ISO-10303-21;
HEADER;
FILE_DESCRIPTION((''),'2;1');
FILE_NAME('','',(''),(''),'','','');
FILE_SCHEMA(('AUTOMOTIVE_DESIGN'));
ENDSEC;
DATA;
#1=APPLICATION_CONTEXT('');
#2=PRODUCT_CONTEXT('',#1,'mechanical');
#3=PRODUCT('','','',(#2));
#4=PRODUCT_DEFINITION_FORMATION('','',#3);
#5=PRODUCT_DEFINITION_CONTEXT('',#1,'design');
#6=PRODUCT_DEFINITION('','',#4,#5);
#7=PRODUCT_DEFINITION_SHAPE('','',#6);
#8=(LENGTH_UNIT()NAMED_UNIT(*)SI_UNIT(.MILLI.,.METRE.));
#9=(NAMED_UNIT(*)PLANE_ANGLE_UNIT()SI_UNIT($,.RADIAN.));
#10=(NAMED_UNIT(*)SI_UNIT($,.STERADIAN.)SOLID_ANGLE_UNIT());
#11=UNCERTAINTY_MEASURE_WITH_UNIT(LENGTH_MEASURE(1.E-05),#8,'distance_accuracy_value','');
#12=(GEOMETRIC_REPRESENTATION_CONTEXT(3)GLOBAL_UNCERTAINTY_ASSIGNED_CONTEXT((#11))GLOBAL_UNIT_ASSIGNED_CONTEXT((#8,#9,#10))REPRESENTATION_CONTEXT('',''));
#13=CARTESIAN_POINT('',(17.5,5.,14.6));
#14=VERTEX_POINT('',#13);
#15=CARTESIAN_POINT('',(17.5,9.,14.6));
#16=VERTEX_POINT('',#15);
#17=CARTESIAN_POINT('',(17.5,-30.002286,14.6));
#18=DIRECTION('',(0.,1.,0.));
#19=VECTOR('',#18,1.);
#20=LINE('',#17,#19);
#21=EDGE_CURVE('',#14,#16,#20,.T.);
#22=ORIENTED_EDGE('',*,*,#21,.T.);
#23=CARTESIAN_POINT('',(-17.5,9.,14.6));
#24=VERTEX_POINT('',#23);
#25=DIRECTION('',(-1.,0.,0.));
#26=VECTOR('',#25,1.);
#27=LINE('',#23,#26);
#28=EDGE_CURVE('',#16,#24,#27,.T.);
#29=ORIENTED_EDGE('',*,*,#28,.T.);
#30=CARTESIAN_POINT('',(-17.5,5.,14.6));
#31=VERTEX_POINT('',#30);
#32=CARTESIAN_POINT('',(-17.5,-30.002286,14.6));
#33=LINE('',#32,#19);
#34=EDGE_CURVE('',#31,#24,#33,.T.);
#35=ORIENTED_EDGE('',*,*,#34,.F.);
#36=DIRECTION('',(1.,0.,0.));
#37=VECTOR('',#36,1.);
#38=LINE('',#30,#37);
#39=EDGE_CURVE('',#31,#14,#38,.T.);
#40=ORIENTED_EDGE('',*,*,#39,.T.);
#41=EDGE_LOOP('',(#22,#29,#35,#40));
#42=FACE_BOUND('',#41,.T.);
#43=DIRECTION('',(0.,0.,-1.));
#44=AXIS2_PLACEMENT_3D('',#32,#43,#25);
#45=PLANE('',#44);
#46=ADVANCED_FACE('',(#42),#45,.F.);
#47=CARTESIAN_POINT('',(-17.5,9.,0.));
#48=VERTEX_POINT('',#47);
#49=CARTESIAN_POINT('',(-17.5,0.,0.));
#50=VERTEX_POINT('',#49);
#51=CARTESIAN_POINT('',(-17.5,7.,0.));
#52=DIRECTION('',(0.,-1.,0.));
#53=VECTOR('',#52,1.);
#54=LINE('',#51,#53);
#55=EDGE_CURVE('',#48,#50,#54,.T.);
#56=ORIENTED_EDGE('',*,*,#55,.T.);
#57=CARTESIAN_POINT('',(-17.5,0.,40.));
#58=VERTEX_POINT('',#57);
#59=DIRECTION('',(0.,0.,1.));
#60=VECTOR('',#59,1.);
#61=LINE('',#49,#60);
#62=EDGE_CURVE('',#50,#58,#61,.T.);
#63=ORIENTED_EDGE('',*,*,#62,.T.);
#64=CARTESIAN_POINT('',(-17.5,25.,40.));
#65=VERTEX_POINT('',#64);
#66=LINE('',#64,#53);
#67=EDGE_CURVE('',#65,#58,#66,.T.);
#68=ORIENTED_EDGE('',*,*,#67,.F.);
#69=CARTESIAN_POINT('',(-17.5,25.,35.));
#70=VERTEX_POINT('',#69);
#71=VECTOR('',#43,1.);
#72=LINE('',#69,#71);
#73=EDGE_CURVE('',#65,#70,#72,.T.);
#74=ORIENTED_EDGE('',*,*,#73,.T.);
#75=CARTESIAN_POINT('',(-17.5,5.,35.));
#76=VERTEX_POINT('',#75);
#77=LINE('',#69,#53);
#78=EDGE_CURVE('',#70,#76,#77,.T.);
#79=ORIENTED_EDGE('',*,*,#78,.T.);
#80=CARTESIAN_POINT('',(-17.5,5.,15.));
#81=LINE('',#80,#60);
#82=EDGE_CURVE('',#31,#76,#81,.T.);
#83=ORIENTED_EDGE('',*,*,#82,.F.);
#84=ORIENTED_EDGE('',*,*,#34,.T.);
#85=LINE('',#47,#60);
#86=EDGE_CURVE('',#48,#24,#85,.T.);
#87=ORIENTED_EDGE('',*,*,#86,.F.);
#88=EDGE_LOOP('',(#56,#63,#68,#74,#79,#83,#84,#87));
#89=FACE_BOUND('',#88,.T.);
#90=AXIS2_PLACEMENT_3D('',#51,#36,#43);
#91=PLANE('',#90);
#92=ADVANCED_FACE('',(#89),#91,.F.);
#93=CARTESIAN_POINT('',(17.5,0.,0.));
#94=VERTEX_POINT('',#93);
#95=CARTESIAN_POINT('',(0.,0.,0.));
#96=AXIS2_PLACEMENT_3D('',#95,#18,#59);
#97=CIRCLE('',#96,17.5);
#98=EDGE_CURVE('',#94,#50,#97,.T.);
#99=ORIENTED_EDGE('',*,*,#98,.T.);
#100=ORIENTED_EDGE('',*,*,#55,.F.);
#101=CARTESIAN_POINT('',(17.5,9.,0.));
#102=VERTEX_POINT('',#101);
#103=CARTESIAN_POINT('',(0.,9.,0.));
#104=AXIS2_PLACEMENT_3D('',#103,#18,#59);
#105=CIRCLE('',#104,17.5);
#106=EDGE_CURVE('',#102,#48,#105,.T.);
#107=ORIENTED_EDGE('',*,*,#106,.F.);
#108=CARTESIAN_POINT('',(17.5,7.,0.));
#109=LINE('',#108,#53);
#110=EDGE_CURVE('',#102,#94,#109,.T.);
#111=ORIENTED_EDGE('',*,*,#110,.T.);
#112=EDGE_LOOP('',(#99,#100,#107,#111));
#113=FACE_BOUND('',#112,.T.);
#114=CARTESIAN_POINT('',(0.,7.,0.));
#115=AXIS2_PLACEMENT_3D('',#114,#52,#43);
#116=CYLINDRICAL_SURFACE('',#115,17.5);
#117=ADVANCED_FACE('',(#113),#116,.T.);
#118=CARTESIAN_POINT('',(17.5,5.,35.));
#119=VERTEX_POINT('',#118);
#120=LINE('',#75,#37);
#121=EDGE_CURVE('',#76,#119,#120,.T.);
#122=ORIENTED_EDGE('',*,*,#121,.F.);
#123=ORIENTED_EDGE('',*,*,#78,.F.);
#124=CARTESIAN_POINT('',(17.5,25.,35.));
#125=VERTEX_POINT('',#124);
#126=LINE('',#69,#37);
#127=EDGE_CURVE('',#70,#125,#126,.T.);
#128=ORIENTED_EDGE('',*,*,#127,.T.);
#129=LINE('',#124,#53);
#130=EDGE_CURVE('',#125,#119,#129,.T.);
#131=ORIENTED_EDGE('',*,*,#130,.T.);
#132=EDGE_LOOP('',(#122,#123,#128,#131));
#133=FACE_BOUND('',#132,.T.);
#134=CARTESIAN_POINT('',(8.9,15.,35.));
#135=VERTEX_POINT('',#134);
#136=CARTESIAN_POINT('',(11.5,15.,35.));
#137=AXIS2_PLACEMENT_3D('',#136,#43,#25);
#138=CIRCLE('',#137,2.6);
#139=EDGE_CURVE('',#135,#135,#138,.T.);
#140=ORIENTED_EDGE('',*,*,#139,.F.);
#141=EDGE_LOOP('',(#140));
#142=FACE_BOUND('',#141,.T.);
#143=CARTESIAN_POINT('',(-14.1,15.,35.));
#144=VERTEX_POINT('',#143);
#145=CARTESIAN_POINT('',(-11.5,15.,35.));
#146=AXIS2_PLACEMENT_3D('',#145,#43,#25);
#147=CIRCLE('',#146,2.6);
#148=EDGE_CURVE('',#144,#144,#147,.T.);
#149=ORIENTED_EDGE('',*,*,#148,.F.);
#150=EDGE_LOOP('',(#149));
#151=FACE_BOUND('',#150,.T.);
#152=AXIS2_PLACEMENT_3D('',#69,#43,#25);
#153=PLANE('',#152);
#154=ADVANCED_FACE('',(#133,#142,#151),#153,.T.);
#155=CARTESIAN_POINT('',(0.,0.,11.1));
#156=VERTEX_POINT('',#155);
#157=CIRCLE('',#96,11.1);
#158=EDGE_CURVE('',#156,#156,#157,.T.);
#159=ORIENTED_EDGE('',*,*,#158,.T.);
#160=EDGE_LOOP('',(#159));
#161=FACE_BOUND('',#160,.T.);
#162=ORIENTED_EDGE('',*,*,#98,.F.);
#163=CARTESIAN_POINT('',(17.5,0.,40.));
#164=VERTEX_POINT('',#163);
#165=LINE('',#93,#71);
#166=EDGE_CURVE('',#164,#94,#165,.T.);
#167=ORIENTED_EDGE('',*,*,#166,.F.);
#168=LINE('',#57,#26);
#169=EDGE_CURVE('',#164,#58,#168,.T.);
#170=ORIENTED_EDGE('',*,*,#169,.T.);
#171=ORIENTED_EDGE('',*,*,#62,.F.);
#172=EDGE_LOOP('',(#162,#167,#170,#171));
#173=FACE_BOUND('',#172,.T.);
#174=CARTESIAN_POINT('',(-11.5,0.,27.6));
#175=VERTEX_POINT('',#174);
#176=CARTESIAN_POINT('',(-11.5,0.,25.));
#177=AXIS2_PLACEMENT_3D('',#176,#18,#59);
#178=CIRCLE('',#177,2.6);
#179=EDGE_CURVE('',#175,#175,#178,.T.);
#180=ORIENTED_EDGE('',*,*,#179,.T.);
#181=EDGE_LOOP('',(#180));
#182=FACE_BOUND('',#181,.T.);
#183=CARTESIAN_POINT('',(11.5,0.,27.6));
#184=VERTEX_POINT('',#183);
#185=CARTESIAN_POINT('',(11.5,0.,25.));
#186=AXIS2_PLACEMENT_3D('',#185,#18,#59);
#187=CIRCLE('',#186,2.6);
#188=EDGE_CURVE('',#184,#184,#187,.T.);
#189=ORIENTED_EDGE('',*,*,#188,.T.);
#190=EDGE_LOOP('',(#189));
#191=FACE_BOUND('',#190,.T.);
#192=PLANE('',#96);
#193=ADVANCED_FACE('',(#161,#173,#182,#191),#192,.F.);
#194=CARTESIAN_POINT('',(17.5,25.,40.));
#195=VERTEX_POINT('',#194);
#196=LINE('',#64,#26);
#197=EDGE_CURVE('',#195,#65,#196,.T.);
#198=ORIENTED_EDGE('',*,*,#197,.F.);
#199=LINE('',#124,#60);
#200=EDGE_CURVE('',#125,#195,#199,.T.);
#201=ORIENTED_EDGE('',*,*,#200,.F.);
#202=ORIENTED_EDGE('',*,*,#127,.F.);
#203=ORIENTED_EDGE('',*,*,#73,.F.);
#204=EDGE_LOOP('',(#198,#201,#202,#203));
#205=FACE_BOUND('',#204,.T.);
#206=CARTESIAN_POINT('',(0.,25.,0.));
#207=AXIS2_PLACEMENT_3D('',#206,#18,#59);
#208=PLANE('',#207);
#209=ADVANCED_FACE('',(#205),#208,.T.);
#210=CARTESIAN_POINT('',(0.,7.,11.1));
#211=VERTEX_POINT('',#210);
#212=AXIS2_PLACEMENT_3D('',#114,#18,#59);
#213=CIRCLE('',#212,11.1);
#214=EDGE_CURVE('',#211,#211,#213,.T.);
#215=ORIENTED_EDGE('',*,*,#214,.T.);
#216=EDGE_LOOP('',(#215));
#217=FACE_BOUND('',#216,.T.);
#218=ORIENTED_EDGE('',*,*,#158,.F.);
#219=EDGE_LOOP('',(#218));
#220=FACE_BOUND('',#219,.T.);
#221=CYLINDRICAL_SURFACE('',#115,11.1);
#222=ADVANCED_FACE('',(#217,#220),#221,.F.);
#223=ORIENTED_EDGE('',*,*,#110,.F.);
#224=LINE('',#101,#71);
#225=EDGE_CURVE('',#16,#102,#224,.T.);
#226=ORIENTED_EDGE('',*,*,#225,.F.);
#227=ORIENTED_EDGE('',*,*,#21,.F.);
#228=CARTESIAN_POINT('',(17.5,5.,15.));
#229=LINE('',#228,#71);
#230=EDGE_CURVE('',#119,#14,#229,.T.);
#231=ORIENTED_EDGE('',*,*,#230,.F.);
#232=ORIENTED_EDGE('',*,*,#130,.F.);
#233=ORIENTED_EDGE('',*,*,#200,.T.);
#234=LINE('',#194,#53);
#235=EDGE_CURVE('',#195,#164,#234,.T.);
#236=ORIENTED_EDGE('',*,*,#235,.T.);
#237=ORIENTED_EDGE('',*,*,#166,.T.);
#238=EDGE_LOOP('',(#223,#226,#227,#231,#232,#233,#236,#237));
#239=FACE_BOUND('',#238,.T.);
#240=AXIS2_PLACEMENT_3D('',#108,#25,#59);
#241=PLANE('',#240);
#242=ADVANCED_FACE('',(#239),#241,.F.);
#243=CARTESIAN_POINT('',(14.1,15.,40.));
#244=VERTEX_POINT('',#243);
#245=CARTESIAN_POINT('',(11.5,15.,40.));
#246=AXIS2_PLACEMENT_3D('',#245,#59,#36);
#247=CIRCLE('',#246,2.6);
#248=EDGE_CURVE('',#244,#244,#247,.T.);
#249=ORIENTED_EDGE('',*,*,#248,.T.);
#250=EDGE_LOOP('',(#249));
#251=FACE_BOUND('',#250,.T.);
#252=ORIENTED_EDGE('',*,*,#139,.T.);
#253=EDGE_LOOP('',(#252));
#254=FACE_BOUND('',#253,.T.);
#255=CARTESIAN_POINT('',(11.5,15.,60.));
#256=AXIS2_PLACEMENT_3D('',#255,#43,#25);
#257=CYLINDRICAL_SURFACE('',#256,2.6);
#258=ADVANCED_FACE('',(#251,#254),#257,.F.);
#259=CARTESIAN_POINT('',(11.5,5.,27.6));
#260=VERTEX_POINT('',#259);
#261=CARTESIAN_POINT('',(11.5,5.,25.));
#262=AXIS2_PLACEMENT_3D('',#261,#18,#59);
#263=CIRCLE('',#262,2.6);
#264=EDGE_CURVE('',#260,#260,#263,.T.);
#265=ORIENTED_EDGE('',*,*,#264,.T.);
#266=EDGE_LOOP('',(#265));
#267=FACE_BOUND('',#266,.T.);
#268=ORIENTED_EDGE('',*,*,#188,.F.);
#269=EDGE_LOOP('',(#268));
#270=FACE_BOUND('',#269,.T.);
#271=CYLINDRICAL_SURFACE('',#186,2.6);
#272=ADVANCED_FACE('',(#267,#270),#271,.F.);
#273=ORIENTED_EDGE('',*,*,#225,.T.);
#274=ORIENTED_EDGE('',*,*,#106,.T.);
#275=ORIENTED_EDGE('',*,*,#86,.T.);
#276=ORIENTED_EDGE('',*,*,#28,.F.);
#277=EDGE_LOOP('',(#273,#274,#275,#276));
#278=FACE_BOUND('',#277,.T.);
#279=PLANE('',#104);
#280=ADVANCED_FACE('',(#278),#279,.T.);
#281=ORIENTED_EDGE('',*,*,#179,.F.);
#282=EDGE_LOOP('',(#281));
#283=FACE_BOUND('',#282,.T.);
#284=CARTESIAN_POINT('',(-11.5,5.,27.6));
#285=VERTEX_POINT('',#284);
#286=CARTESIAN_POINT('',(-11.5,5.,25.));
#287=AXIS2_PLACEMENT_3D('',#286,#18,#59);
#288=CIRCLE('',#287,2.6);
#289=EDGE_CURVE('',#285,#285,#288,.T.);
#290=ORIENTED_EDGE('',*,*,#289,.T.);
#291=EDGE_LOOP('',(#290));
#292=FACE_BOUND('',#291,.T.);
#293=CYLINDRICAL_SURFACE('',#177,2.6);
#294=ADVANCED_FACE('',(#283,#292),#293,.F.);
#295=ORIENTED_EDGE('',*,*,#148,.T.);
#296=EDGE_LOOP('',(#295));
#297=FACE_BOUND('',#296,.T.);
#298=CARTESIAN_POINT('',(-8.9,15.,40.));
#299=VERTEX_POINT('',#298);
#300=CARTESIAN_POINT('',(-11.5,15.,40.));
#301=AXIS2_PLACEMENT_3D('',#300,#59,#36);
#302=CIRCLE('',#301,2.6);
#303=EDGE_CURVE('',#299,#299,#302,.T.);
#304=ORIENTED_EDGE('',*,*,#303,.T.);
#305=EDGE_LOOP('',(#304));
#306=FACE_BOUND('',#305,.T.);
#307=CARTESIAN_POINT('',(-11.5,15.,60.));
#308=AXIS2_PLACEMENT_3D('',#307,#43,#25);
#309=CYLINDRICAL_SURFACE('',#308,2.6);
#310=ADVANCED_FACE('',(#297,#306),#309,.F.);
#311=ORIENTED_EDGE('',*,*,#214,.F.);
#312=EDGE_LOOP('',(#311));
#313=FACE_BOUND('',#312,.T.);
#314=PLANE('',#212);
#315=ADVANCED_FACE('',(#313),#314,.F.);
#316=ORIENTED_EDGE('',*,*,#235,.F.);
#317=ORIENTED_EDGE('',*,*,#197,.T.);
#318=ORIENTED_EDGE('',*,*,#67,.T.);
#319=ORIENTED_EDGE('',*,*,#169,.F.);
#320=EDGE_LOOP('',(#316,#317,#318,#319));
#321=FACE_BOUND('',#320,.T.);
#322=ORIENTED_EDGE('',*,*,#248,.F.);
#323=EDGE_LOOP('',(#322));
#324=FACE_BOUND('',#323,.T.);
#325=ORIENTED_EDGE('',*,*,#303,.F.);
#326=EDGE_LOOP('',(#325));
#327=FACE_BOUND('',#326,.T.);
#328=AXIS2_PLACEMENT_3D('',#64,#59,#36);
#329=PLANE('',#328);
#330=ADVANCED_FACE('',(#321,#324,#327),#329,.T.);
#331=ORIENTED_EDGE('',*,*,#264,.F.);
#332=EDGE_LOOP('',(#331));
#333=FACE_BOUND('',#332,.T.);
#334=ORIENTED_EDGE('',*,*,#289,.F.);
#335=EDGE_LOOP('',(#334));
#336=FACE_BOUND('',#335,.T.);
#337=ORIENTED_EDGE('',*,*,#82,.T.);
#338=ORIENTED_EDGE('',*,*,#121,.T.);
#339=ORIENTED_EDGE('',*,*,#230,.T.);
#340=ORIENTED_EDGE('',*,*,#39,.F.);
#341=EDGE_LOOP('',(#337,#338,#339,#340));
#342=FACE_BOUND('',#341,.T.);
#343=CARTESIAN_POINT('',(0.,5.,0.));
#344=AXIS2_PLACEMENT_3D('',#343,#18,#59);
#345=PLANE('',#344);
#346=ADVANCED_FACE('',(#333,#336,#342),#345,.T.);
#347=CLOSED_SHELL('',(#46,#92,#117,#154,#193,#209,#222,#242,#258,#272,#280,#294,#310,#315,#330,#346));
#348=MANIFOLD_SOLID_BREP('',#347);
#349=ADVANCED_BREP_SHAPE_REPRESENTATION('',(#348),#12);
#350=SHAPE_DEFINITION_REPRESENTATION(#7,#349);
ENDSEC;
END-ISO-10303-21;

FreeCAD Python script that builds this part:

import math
import FreeCAD as App
import Part
import Sketcher

V = App.Vector
Q = App.Units.Quantity


def add_polygon(sketch, points):
    """Adds a closed chain of lines whose ends are joined by coincident constraints."""
    first, n = sketch.GeometryCount, len(points)
    for a, b in zip(points, points[1:] + points[:1]):
        sketch.addGeometry(Part.LineSegment(App.Vector(*a, 0), App.Vector(*b, 0)), False)
    for i in range(n):
        sketch.addConstraint(Sketcher.Constraint("Coincident", first + i, 2, first + (i + 1) % n, 1))

doc = App.newDocument("Part")
body = doc.addObject("PartDesign::Body", "Body")

# Sketch on XZ plane
sketch1 = body.newObject("Sketcher::SketchObject", "Sketch")
sketch1.AttachmentSupport = (doc.getObject("XZ_Plane"), [""])
sketch1.MapMode = "FlatFace"
sketch1.addGeometry(Part.LineSegment(V(-18, 0, 0), V(-18, 15, 0)), False)
sketch1.addGeometry(Part.LineSegment(V(-18, 15, 0), V(18, 15, 0)), False)
sketch1.addGeometry(Part.LineSegment(V(18, 15, 0), V(18, 0, 0)), False)
sketch1.addGeometry(Part.ArcOfCircle(Part.Circle(V(0, 0, 0), V(0, 0, 1), 18), math.radians(180), math.radians(360)), False)
sketch1.addGeometry(Part.Circle(V(0, 0, 0), V(0, 0, 1), 11), False)
sketch1.addConstraint(Sketcher.Constraint("Coincident", 0, 2, 1, 1))
sketch1.addConstraint(Sketcher.Constraint("Coincident", 1, 2, 2, 1))
sketch1.addConstraint(Sketcher.Constraint("Tangent", 2, 2, 3, 2))
sketch1.addConstraint(Sketcher.Constraint("Tangent", 3, 1, 0, 1))
sketch1.addConstraint(Sketcher.Constraint("Vertical", 0))
sketch1.addConstraint(Sketcher.Constraint("Horizontal", 1))
sketch1.addConstraint(Sketcher.Constraint("Vertical", 2))
sketch1.addConstraint(Sketcher.Constraint("Coincident", 3, 3, -1, 1))
sketch1.addConstraint(Sketcher.Constraint("Coincident", 4, 3, -1, 1))
sketch1.addConstraint(Sketcher.Constraint("Diameter", 4, Q("22.2 mm")))
sketch1.addConstraint(Sketcher.Constraint("Radius", 3, Q("17.5 mm")))
sketch1.addConstraint(Sketcher.Constraint("DistanceY", 0, 1, 0, 2, Q("15 mm")))
pad1 = body.newObject("PartDesign::Pad", "Pad")
pad1.Profile = sketch1
pad1.Length = 7
pad1.Reversed = True

# Sketch on XZ plane
sketch2 = body.newObject("Sketcher::SketchObject", "Sketch001")
sketch2.AttachmentSupport = (doc.getObject("XZ_Plane"), [""])
sketch2.MapMode = "FlatFace"
add_polygon(sketch2, [(-18, 15), (-18, 35), (18, 35), (18, 15)])  # lines 0-3
sketch2.addConstraint(Sketcher.Constraint("Vertical", 0))
sketch2.addConstraint(Sketcher.Constraint("Horizontal", 1))
sketch2.addConstraint(Sketcher.Constraint("Vertical", 2))
sketch2.addConstraint(Sketcher.Constraint("Horizontal", 3))
sketch2.addConstraint(Sketcher.Constraint("DistanceX", 1, 1, 1, 2, Q("35 mm")))
sketch2.addConstraint(Sketcher.Constraint("DistanceY", 0, 1, 0, 2, Q("20 mm")))
sketch2.addConstraint(Sketcher.Constraint("DistanceY", -1, 1, 0, 2, Q("35 mm")))
sketch2.addConstraint(Sketcher.Constraint("DistanceX", 0, 2, -1, 1, Q("17.5 mm")))
pad2 = body.newObject("PartDesign::Pad", "Pad001")
pad2.Profile = sketch2
pad2.Length = 5
pad2.Reversed = True

# Sketch on XZ plane
sketch3 = body.newObject("Sketcher::SketchObject", "Sketch002")
sketch3.AttachmentSupport = (doc.getObject("XZ_Plane"), [""])
sketch3.MapMode = "FlatFace"
sketch3.AttachmentOffset = App.Placement(V(0, 0, -7), App.Rotation())
sketch3.addGeometry(Part.Circle(V(-11.5, 25, 0), V(0, 0, 1), 2.6), False)
sketch3.addGeometry(Part.Circle(V(11.5, 25, 0), V(0, 0, 1), 2.6), False)
sketch3.addConstraint(Sketcher.Constraint("Equal", 0, 1))
sketch3.addConstraint(Sketcher.Constraint("Symmetric", 0, 3, 1, 3, -2))
sketch3.addConstraint(Sketcher.Constraint("Diameter", 0, Q("5.2 mm")))
sketch3.addConstraint(Sketcher.Constraint("DistanceY", -1, 1, 0, 3, Q("25 mm")))
sketch3.addConstraint(Sketcher.Constraint("DistanceX", 0, 3, 1, 3, Q("23 mm")))
pocket1 = body.newObject("PartDesign::Pocket", "Pocket")
pocket1.Profile = sketch3
pocket1.Type = "ThroughAll"
pocket1.Reversed = True

# Sketch on XZ plane
sketch4 = body.newObject("Sketcher::SketchObject", "Sketch003")
sketch4.AttachmentSupport = (doc.getObject("XZ_Plane"), [""])
sketch4.MapMode = "FlatFace"
sketch4.AttachmentOffset = App.Placement(V(0, 0, -7), App.Rotation())
sketch4.addGeometry(Part.LineSegment(V(-18, 0, 0), V(-18, 15, 0)), False)
sketch4.addGeometry(Part.LineSegment(V(-18, 15, 0), V(18, 15, 0)), False)
sketch4.addGeometry(Part.LineSegment(V(18, 15, 0), V(18, 0, 0)), False)
sketch4.addGeometry(Part.ArcOfCircle(Part.Circle(V(0, 0, 0), V(0, 0, 1), 18), math.radians(180), math.radians(360)), False)
sketch4.addConstraint(Sketcher.Constraint("Coincident", 0, 2, 1, 1))
sketch4.addConstraint(Sketcher.Constraint("Coincident", 1, 2, 2, 1))
sketch4.addConstraint(Sketcher.Constraint("Tangent", 2, 2, 3, 2))
sketch4.addConstraint(Sketcher.Constraint("Tangent", 3, 1, 0, 1))
sketch4.addConstraint(Sketcher.Constraint("Vertical", 0))
sketch4.addConstraint(Sketcher.Constraint("Horizontal", 1))
sketch4.addConstraint(Sketcher.Constraint("Vertical", 2))
sketch4.addConstraint(Sketcher.Constraint("Coincident", 3, 3, -1, 1))
sketch4.addConstraint(Sketcher.Constraint("Radius", 3, Q("17.5 mm")))
sketch4.addConstraint(Sketcher.Constraint("DistanceY", 0, 1, 0, 2, Q("15 mm")))
pad3 = body.newObject("PartDesign::Pad", "Pad002")
pad3.Profile = sketch4
pad3.Length = 2
pad3.Reversed = True

# Sketch on XZ plane
sketch5 = body.newObject("Sketcher::SketchObject", "Sketch004")
sketch5.AttachmentSupport = (doc.getObject("XZ_Plane"), [""])
sketch5.MapMode = "FlatFace"
add_polygon(sketch5, [(-18, 40), (-18, 35), (18, 35), (18, 40)])  # lines 0-3
sketch5.addConstraint(Sketcher.Constraint("Vertical", 0))
sketch5.addConstraint(Sketcher.Constraint("Horizontal", 1))
sketch5.addConstraint(Sketcher.Constraint("Vertical", 2))
sketch5.addConstraint(Sketcher.Constraint("Horizontal", 3))
sketch5.addConstraint(Sketcher.Constraint("DistanceX", 1, 1, 1, 2, Q("35 mm")))
sketch5.addConstraint(Sketcher.Constraint("DistanceY", 0, 2, 0, 1, Q("5 mm")))
sketch5.addConstraint(Sketcher.Constraint("DistanceY", -1, 1, 0, 2, Q("35 mm")))
sketch5.addConstraint(Sketcher.Constraint("DistanceX", 0, 2, -1, 1, Q("17.5 mm")))
pad4 = body.newObject("PartDesign::Pad", "Pad003")
pad4.Profile = sketch5
pad4.Length = 25
pad4.Reversed = True

# Sketch on XY plane
sketch6 = body.newObject("Sketcher::SketchObject", "Sketch005")
sketch6.AttachmentSupport = (doc.getObject("XY_Plane"), [""])
sketch6.MapMode = "FlatFace"
sketch6.AttachmentOffset = App.Placement(V(0, 0, 35), App.Rotation())
sketch6.addGeometry(Part.Circle(V(11.5, 15, 0), V(0, 0, 1), 2.6), False)
sketch6.addGeometry(Part.Circle(V(-11.5, 15, 0), V(0, 0, 1), 2.6), False)
sketch6.addConstraint(Sketcher.Constraint("Equal", 0, 1))
sketch6.addConstraint(Sketcher.Constraint("Symmetric", 0, 3, 1, 3, -2))
sketch6.addConstraint(Sketcher.Constraint("Diameter", 0, Q("5.2 mm")))
sketch6.addConstraint(Sketcher.Constraint("DistanceY", -1, 1, 0, 3, Q("15 mm")))
sketch6.addConstraint(Sketcher.Constraint("DistanceX", 1, 3, 0, 3, Q("23 mm")))
pocket2 = body.newObject("PartDesign::Pocket", "Pocket001")
pocket2.Profile = sketch6
pocket2.Length = 25
pocket2.Reversed = True

# Sketch on XZ plane
sketch7 = body.newObject("Sketcher::SketchObject", "Sketch006")
sketch7.AttachmentSupport = (doc.getObject("XZ_Plane"), [""])
sketch7.MapMode = "FlatFace"
sketch7.AttachmentOffset = App.Placement(V(0, 0, -9), App.Rotation())
add_polygon(sketch7, [(-17.5, 14.6), (-17.5, 15), (17.5, 15), (17.5, 14.6)])  # lines 0-3
sketch7.addConstraint(Sketcher.Constraint("Vertical", 0))
sketch7.addConstraint(Sketcher.Constraint("Horizontal", 1))
sketch7.addConstraint(Sketcher.Constraint("Vertical", 2))
sketch7.addConstraint(Sketcher.Constraint("Horizontal", 3))
sketch7.addConstraint(Sketcher.Constraint("DistanceX", 1, 1, 1, 2, Q("35 mm")))
sketch7.addConstraint(Sketcher.Constraint("DistanceY", 0, 1, 0, 2, Q("0.4 mm")))
sketch7.addConstraint(Sketcher.Constraint("DistanceY", -1, 1, 0, 2, Q("15 mm")))
sketch7.addConstraint(Sketcher.Constraint("DistanceX", 0, 2, -1, 1, Q("17.5 mm")))
pocket3 = body.newObject("PartDesign::Pocket", "Pocket002")
pocket3.Profile = sketch7
pocket3.Length = 4
pocket3.Reversed = True

doc.recompute()
